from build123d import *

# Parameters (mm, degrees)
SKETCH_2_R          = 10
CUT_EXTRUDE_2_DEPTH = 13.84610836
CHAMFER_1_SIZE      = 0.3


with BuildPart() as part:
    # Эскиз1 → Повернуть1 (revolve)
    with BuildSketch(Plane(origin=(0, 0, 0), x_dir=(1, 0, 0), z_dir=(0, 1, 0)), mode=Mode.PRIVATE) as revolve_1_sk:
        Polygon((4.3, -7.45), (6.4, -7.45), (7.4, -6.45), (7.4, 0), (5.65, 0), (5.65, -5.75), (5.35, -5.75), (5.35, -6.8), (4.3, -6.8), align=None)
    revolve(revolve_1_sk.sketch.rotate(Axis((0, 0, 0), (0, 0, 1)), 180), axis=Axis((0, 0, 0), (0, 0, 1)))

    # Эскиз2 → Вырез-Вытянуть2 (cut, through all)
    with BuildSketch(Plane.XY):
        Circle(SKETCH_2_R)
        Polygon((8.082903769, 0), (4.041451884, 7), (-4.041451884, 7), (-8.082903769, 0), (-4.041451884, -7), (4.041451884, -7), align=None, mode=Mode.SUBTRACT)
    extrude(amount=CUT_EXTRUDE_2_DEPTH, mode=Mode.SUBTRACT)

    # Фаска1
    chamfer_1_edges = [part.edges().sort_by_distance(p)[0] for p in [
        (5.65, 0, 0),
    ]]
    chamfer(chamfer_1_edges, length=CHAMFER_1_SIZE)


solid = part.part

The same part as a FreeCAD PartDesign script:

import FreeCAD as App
import Part
import Sketcher

V = App.Vector
Q = App.Units.Quantity


def edges_at(feature, points):
    """Names of the edges that pass closest to the given points."""
    edges = feature.Shape.Edges
    near = lambda p: min(range(len(edges)), key=lambda i: edges[i].distToShape(Part.Vertex(*p))[0])
    return sorted({f"Edge{near(p) + 1}" for p in points})


def add_polygon(sketch, points):
    """Adds a closed chain of lines whose ends are joined by coincident constraints."""
    first, n = sketch.GeometryCount, len(points)
    for a, b in zip(points, points[1:] + points[:1]):
        sketch.addGeometry(Part.LineSegment(App.Vector(*a, 0), App.Vector(*b, 0)), False)
    for i in range(n):
        sketch.addConstraint(Sketcher.Constraint("Coincident", first + i, 2, first + (i + 1) % n, 1))

doc = App.newDocument("Part")
body = doc.addObject("PartDesign::Body", "Body")

# Sketch on XZ plane
sketch1 = body.newObject("Sketcher::SketchObject", "Sketch")
sketch1.AttachmentSupport = (doc.getObject("XZ_Plane"), [""])
sketch1.MapMode = "FlatFace"
add_polygon(sketch1, [(4.3, 7.45), (6.4, 7.45), (7.4, 6.45), (7.4, 0), (5.65, 0), (5.65, 5.75), (5.35, 5.75), (5.35, 6.8), (4.3, 6.8)])  # lines 0-8
sketch1.addConstraint([
    Sketcher.Constraint("Horizontal", 0),
    Sketcher.Constraint("Vertical", 2),
    Sketcher.Constraint("Horizontal", 3),
    Sketcher.Constraint("Vertical", 4),
    Sketcher.Constraint("Horizontal", 5),
    Sketcher.Constraint("Vertical", 6),
    Sketcher.Constraint("Horizontal", 7),
    Sketcher.Constraint("Vertical", 8),
    Sketcher.Constraint("PointOnObject", 2, 2, -1),
    Sketcher.Constraint("Equal", 7, 6),
    Sketcher.Constraint("Angle", 1, Q("-45 deg")),
    Sketcher.Constraint("DistanceX", 0, 1, 0, 2, Q("2.1 mm")),
    Sketcher.Constraint("DistanceX", 5, 2, 5, 1, Q("0.3 mm")),
    Sketcher.Constraint("DistanceX", 0, 2, 1, 2, Q("1 mm")),
    Sketcher.Constraint("DistanceX", 3, 2, 3, 1, Q("1.75 mm")),
    Sketcher.Constraint("DistanceY", 2, 2, 2, 1, Q("6.45 mm")),
    Sketcher.Constraint("DistanceY", 4, 1, 4, 2, Q("5.75 mm")),
    Sketcher.Constraint("DistanceX", -1, 1, 0, 2, Q("6.4 mm")),
])
revolution = body.newObject("PartDesign::Revolution", "Revolution")
revolution.Profile = sketch1
revolution.ReferenceAxis = (sketch1, ["V_Axis"])
revolution.Angle = 360

# Sketch on XY plane
sketch2 = body.newObject("Sketcher::SketchObject", "Sketch001")
sketch2.AttachmentSupport = (doc.getObject("XY_Plane"), [""])
sketch2.MapMode = "FlatFace"
sketch2.addGeometry(Part.Circle(V(0, 0, 0), V(0, 0, 1), 10), False)  # 0
add_polygon(sketch2, [(4, 7), (8, 0), (4, -7), (-4, -7), (-8, 0), (-4, 7)])  # lines 1-6
sketch2.addConstraint([
    Sketcher.Constraint("Horizontal", 3),
    Sketcher.Constraint("Horizontal", 6),
    Sketcher.Constraint("Coincident", 0, 3, -1, 1),
    Sketcher.Constraint("Symmetric", 1, 2, 4, 2, -1, 1),
    Sketcher.Constraint("Symmetric", 2, 2, 5, 2, -1, 1),
    Sketcher.Constraint("PointOnObject", 1, 2, -1),
    Sketcher.Constraint("Parallel", 1, 4),
    Sketcher.Constraint("Vertical", 3, 2, 5, 2),
    Sketcher.Constraint("Diameter", 0, Q("20 mm")),
    Sketcher.Constraint("Angle", 1, Q("-60 deg")),
    Sketcher.Constraint("DistanceY", 2, 2, -1, 1, Q("7 mm")),
    Sketcher.Constraint("DistanceX", 3, 2, 3, 1, Q("8.082904 mm")),
])
pocket1 = body.newObject("PartDesign::Pocket", "Pocket")
pocket1.Profile = sketch2
pocket1.Type = "ThroughAll"
pocket1.Reversed = True
doc.recompute()

chamfer = body.newObject("PartDesign::Chamfer", "Chamfer")
chamfer.Base = (pocket1, edges_at(pocket1, [(5.65, 0, 0)]))
chamfer.Size = 0.3

doc.recompute()
